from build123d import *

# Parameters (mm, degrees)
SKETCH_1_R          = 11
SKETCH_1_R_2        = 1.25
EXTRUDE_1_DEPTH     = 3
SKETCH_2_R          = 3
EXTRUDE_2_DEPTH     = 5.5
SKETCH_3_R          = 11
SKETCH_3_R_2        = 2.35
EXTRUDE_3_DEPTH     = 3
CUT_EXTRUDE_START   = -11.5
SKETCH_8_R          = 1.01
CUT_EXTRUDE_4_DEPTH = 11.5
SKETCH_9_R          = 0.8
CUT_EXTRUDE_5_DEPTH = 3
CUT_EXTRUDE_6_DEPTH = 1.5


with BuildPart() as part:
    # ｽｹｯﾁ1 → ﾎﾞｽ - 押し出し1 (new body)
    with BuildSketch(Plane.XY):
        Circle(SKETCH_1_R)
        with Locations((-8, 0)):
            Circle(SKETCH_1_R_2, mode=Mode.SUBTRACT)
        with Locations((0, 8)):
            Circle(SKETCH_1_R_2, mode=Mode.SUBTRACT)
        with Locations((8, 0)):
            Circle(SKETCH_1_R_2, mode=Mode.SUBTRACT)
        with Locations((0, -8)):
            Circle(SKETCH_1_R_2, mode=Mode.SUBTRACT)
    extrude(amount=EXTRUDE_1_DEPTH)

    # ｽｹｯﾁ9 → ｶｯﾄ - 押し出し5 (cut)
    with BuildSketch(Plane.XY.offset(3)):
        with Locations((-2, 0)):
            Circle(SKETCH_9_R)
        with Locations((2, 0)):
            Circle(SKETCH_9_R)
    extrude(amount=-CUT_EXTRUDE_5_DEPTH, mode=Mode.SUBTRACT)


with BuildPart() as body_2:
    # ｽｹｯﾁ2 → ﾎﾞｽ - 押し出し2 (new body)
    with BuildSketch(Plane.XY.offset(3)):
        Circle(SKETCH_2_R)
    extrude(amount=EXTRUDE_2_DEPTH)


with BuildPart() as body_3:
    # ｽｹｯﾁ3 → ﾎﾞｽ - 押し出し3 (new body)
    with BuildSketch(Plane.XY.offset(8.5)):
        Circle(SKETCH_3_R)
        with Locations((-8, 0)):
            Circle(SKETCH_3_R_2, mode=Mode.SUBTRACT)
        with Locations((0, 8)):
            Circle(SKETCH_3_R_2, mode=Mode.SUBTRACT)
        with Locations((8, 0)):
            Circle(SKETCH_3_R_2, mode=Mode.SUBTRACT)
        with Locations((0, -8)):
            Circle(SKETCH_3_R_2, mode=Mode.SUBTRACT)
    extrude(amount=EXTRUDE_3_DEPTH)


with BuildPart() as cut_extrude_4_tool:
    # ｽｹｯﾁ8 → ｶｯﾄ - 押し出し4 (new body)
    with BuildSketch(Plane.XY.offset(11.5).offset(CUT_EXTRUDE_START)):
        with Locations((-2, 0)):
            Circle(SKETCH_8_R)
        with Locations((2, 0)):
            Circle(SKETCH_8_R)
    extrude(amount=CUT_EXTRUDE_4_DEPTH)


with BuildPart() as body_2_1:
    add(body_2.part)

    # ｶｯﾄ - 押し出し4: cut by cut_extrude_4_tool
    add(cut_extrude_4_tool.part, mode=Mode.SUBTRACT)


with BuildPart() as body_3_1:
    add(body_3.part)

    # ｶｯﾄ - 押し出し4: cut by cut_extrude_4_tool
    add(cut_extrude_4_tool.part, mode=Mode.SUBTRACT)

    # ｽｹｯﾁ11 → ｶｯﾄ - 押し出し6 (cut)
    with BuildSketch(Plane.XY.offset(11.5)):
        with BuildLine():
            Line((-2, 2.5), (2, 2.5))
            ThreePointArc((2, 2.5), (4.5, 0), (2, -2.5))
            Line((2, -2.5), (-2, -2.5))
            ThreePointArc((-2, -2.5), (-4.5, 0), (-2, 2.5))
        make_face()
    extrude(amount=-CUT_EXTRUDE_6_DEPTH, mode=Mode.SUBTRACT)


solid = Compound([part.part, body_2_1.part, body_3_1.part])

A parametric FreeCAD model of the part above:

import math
import FreeCAD as App
import Part
import Sketcher
from FreeCAD import Vector
Q = App.Units.Quantity

doc = App.newDocument("Part")
body = doc.addObject("PartDesign::Body", "Body")

# Sketch on XY plane
sketch1 = doc.addObject("Sketcher::SketchObject", "Sketch")
body.addObject(sketch1)
sketch1.AttachmentSupport = (doc.XY_Plane, [""])
sketch1.MapMode = "FlatFace"
sketch1.addGeometry(Part.Circle(Vector(0, 0, 0), Vector(0, 0, 1), 11), False)
sketch1.addGeometry(Part.Circle(Vector(0, -8, 0), Vector(0, 0, 1), 1.25), False)
sketch1.addGeometry(Part.Circle(Vector(-8, 0, 0), Vector(0, 0, 1), 1.25), False)
sketch1.addGeometry(Part.Circle(Vector(8, 0, 0), Vector(0, 0, 1), 1.25), False)
sketch1.addGeometry(Part.Circle(Vector(0, 8, 0), Vector(0, 0, 1), 1.25), False)
sketch1.addConstraint(Sketcher.Constraint("Coincident", 0, 3, -1, 1))
sketch1.addConstraint(Sketcher.Constraint("Equal", 1, 2))
sketch1.addConstraint(Sketcher.Constraint("Equal", 2, 3))
sketch1.addConstraint(Sketcher.Constraint("Equal", 3, 4))
sketch1.addConstraint(Sketcher.Constraint("Symmetric", 2, 3, 3, 3, -1, 1))
sketch1.addConstraint(Sketcher.Constraint("Symmetric", 1, 3, 4, 3, -1, 1))
sketch1.addConstraint(Sketcher.Constraint("PointOnObject", 1, 3, -2))
sketch1.addConstraint(Sketcher.Constraint("PointOnObject", 2, 3, -1))
sketch1.addConstraint(Sketcher.Constraint("Diameter", 0, Q("22 mm")))
sketch1.addConstraint(Sketcher.Constraint("Diameter", 1, Q("2.5 mm")))
sketch1.addConstraint(Sketcher.Constraint("DistanceY", 1, 3, -1, 1, Q("8 mm")))
sketch1.addConstraint(Sketcher.Constraint("DistanceX", 2, 3, -1, 1, Q("8 mm")))
pad1 = doc.addObject("PartDesign::Pad", "Pad")
body.addObject(pad1)
pad1.Profile = sketch1
pad1.Length = 3

# Sketch on XY plane
sketch2 = doc.addObject("Sketcher::SketchObject", "Sketch001")
body.addObject(sketch2)
sketch2.AttachmentSupport = (doc.XY_Plane, [""])
sketch2.MapMode = "FlatFace"
sketch2.AttachmentOffset = App.Placement(Vector(0, 0, 3), App.Rotation())
sketch2.addGeometry(Part.Circle(Vector(-2, 0, 0), Vector(0, 0, 1), 0.8), False)
sketch2.addGeometry(Part.Circle(Vector(2, 0, 0), Vector(0, 0, 1), 0.8), False)
sketch2.addConstraint(Sketcher.Constraint("Equal", 0, 1))
sketch2.addConstraint(Sketcher.Constraint("Symmetric", 0, 3, 1, 3, -1, 1))
sketch2.addConstraint(Sketcher.Constraint("PointOnObject", 0, 3, -1))
sketch2.addConstraint(Sketcher.Constraint("Diameter", 0, Q("1.6 mm")))
sketch2.addConstraint(Sketcher.Constraint("DistanceX", 0, 3, -1, 1, Q("2 mm")))
pocket1 = doc.addObject("PartDesign::Pocket", "Pocket")
body.addObject(pocket1)
pocket1.Profile = sketch2
pocket1.Length = 3
body2 = doc.addObject("PartDesign::Body", "Body001")

# Sketch on XY plane
sketch3 = doc.addObject("Sketcher::SketchObject", "Sketch002")
body2.addObject(sketch3)
sketch3.AttachmentSupport = (doc.getObject("XY_Plane001"), [""])
sketch3.MapMode = "FlatFace"
sketch3.AttachmentOffset = App.Placement(Vector(0, 0, 3), App.Rotation())
sketch3.addGeometry(Part.Circle(Vector(0, 0, 0), Vector(0, 0, 1), 3), False)
sketch3.addConstraint(Sketcher.Constraint("Coincident", 0, 3, -1, 1))
sketch3.addConstraint(Sketcher.Constraint("Diameter", 0, Q("6 mm")))
pad2 = doc.addObject("PartDesign::Pad", "Pad001")
body2.addObject(pad2)
pad2.Profile = sketch3
pad2.Length = 5.5
body3 = doc.addObject("PartDesign::Body", "Body002")

# Sketch on XY plane
sketch4 = doc.addObject("Sketcher::SketchObject", "Sketch003")
body3.addObject(sketch4)
sketch4.AttachmentSupport = (doc.getObject("XY_Plane002"), [""])
sketch4.MapMode = "FlatFace"
sketch4.AttachmentOffset = App.Placement(Vector(0, 0, 8.5), App.Rotation())
sketch4.addGeometry(Part.Circle(Vector(0, 0, 0), Vector(0, 0, 1), 11), False)
sketch4.addGeometry(Part.Circle(Vector(0, -8, 0), Vector(0, 0, 1), 2.35), False)
sketch4.addGeometry(Part.Circle(Vector(-8, 0, 0), Vector(0, 0, 1), 2.35), False)
sketch4.addGeometry(Part.Circle(Vector(8, 0, 0), Vector(0, 0, 1), 2.35), False)
sketch4.addGeometry(Part.Circle(Vector(0, 8, 0), Vector(0, 0, 1), 2.35), False)
sketch4.addConstraint(Sketcher.Constraint("Coincident", 0, 3, -1, 1))
sketch4.addConstraint(Sketcher.Constraint("Equal", 1, 2))
sketch4.addConstraint(Sketcher.Constraint("Equal", 2, 3))
sketch4.addConstraint(Sketcher.Constraint("Equal", 3, 4))
sketch4.addConstraint(Sketcher.Constraint("Symmetric", 2, 3, 3, 3, -1, 1))
sketch4.addConstraint(Sketcher.Constraint("Symmetric", 1, 3, 4, 3, -1, 1))
sketch4.addConstraint(Sketcher.Constraint("PointOnObject", 1, 3, -2))
sketch4.addConstraint(Sketcher.Constraint("PointOnObject", 2, 3, -1))
sketch4.addConstraint(Sketcher.Constraint("Diameter", 0, Q("22 mm")))
sketch4.addConstraint(Sketcher.Constraint("Diameter", 1, Q("4.7 mm")))
sketch4.addConstraint(Sketcher.Constraint("DistanceY", 1, 3, -1, 1, Q("8 mm")))
sketch4.addConstraint(Sketcher.Constraint("DistanceX", 2, 3, -1, 1, Q("8 mm")))
pad3 = doc.addObject("PartDesign::Pad", "Pad002")
body3.addObject(pad3)
pad3.Profile = sketch4
pad3.Length = 3
body4 = doc.addObject("PartDesign::Body", "Body003")
body4.AllowCompound = True

# Sketch on XY plane
sketch5 = doc.addObject("Sketcher::SketchObject", "Sketch004")
body4.addObject(sketch5)
sketch5.AttachmentSupport = (doc.getObject("XY_Plane003"), [""])
sketch5.MapMode = "FlatFace"
sketch5.addGeometry(Part.Circle(Vector(-2, 0, 0), Vector(0, 0, 1), 1.01), False)
sketch5.addGeometry(Part.Circle(Vector(2, 0, 0), Vector(0, 0, 1), 1.01), False)
sketch5.addConstraint(Sketcher.Constraint("Equal", 0, 1))
sketch5.addConstraint(Sketcher.Constraint("Symmetric", 0, 3, 1, 3, -1, 1))
sketch5.addConstraint(Sketcher.Constraint("PointOnObject", 0, 3, -1))
sketch5.addConstraint(Sketcher.Constraint("Diameter", 0, Q("2.02 mm")))
sketch5.addConstraint(Sketcher.Constraint("DistanceX", 0, 3, -1, 1, Q("2 mm")))
pad4 = doc.addObject("PartDesign::Pad", "Pad003")
body4.addObject(pad4)
pad4.Profile = sketch5
pad4.Length = 11.5
doc.recompute()

body5 = doc.addObject("PartDesign::Body", "Body004")
body5.BaseFeature = body4
boolean = doc.addObject("PartDesign::Boolean", "Boolean")
body2.addObject(boolean)
boolean.Type = "Cut"
boolean.addObjects([body5])
doc.recompute()

boolean2 = doc.addObject("PartDesign::Boolean", "Boolean001")
body3.addObject(boolean2)
boolean2.Type = "Cut"
boolean2.addObjects([body4])

# Sketch on XY plane
sketch6 = doc.addObject("Sketcher::SketchObject", "Sketch005")
body3.addObject(sketch6)
sketch6.AttachmentSupport = (doc.getObject("XY_Plane002"), [""])
sketch6.MapMode = "FlatFace"
sketch6.AttachmentOffset = App.Placement(Vector(0, 0, 11.5), App.Rotation())
sketch6.addGeometry(Part.LineSegment(Vector(2, 2.5, 0), Vector(-2, 2.5, 0)), False)
sketch6.addGeometry(Part.ArcOfCircle(Part.Circle(Vector(-2, 0, 0), Vector(0, 0, 1), 2.5), math.radians(90), math.radians(270)), False)
sketch6.addGeometry(Part.LineSegment(Vector(-2, -2.5, 0), Vector(2, -2.5, 0)), False)
sketch6.addGeometry(Part.ArcOfCircle(Part.Circle(Vector(2, 0, 0), Vector(0, 0, 1), 2.5), math.radians(-90), math.radians(90)), False)
sketch6.addConstraint(Sketcher.Constraint("Tangent", 0, 2, 1, 1))
sketch6.addConstraint(Sketcher.Constraint("Tangent", 1, 2, 2, 1))
sketch6.addConstraint(Sketcher.Constraint("Tangent", 2, 2, 3, 1))
sketch6.addConstraint(Sketcher.Constraint("Tangent", 3, 2, 0, 1))
sketch6.addConstraint(Sketcher.Constraint("Horizontal", 0))
sketch6.addConstraint(Sketcher.Constraint("Horizontal", 2))
sketch6.addConstraint(Sketcher.Constraint("Symmetric", 1, 3, 3, 3, -1, 1))
sketch6.addConstraint(Sketcher.Constraint("Radius", 1, Q("2.5 mm")))
sketch6.addConstraint(Sketcher.Constraint("DistanceX", 0, 2, 0, 1, Q("4 mm")))
pocket2 = doc.addObject("PartDesign::Pocket", "Pocket001")
body3.addObject(pocket2)
pocket2.Profile = sketch6
pocket2.Length = 1.5

doc.recompute()
